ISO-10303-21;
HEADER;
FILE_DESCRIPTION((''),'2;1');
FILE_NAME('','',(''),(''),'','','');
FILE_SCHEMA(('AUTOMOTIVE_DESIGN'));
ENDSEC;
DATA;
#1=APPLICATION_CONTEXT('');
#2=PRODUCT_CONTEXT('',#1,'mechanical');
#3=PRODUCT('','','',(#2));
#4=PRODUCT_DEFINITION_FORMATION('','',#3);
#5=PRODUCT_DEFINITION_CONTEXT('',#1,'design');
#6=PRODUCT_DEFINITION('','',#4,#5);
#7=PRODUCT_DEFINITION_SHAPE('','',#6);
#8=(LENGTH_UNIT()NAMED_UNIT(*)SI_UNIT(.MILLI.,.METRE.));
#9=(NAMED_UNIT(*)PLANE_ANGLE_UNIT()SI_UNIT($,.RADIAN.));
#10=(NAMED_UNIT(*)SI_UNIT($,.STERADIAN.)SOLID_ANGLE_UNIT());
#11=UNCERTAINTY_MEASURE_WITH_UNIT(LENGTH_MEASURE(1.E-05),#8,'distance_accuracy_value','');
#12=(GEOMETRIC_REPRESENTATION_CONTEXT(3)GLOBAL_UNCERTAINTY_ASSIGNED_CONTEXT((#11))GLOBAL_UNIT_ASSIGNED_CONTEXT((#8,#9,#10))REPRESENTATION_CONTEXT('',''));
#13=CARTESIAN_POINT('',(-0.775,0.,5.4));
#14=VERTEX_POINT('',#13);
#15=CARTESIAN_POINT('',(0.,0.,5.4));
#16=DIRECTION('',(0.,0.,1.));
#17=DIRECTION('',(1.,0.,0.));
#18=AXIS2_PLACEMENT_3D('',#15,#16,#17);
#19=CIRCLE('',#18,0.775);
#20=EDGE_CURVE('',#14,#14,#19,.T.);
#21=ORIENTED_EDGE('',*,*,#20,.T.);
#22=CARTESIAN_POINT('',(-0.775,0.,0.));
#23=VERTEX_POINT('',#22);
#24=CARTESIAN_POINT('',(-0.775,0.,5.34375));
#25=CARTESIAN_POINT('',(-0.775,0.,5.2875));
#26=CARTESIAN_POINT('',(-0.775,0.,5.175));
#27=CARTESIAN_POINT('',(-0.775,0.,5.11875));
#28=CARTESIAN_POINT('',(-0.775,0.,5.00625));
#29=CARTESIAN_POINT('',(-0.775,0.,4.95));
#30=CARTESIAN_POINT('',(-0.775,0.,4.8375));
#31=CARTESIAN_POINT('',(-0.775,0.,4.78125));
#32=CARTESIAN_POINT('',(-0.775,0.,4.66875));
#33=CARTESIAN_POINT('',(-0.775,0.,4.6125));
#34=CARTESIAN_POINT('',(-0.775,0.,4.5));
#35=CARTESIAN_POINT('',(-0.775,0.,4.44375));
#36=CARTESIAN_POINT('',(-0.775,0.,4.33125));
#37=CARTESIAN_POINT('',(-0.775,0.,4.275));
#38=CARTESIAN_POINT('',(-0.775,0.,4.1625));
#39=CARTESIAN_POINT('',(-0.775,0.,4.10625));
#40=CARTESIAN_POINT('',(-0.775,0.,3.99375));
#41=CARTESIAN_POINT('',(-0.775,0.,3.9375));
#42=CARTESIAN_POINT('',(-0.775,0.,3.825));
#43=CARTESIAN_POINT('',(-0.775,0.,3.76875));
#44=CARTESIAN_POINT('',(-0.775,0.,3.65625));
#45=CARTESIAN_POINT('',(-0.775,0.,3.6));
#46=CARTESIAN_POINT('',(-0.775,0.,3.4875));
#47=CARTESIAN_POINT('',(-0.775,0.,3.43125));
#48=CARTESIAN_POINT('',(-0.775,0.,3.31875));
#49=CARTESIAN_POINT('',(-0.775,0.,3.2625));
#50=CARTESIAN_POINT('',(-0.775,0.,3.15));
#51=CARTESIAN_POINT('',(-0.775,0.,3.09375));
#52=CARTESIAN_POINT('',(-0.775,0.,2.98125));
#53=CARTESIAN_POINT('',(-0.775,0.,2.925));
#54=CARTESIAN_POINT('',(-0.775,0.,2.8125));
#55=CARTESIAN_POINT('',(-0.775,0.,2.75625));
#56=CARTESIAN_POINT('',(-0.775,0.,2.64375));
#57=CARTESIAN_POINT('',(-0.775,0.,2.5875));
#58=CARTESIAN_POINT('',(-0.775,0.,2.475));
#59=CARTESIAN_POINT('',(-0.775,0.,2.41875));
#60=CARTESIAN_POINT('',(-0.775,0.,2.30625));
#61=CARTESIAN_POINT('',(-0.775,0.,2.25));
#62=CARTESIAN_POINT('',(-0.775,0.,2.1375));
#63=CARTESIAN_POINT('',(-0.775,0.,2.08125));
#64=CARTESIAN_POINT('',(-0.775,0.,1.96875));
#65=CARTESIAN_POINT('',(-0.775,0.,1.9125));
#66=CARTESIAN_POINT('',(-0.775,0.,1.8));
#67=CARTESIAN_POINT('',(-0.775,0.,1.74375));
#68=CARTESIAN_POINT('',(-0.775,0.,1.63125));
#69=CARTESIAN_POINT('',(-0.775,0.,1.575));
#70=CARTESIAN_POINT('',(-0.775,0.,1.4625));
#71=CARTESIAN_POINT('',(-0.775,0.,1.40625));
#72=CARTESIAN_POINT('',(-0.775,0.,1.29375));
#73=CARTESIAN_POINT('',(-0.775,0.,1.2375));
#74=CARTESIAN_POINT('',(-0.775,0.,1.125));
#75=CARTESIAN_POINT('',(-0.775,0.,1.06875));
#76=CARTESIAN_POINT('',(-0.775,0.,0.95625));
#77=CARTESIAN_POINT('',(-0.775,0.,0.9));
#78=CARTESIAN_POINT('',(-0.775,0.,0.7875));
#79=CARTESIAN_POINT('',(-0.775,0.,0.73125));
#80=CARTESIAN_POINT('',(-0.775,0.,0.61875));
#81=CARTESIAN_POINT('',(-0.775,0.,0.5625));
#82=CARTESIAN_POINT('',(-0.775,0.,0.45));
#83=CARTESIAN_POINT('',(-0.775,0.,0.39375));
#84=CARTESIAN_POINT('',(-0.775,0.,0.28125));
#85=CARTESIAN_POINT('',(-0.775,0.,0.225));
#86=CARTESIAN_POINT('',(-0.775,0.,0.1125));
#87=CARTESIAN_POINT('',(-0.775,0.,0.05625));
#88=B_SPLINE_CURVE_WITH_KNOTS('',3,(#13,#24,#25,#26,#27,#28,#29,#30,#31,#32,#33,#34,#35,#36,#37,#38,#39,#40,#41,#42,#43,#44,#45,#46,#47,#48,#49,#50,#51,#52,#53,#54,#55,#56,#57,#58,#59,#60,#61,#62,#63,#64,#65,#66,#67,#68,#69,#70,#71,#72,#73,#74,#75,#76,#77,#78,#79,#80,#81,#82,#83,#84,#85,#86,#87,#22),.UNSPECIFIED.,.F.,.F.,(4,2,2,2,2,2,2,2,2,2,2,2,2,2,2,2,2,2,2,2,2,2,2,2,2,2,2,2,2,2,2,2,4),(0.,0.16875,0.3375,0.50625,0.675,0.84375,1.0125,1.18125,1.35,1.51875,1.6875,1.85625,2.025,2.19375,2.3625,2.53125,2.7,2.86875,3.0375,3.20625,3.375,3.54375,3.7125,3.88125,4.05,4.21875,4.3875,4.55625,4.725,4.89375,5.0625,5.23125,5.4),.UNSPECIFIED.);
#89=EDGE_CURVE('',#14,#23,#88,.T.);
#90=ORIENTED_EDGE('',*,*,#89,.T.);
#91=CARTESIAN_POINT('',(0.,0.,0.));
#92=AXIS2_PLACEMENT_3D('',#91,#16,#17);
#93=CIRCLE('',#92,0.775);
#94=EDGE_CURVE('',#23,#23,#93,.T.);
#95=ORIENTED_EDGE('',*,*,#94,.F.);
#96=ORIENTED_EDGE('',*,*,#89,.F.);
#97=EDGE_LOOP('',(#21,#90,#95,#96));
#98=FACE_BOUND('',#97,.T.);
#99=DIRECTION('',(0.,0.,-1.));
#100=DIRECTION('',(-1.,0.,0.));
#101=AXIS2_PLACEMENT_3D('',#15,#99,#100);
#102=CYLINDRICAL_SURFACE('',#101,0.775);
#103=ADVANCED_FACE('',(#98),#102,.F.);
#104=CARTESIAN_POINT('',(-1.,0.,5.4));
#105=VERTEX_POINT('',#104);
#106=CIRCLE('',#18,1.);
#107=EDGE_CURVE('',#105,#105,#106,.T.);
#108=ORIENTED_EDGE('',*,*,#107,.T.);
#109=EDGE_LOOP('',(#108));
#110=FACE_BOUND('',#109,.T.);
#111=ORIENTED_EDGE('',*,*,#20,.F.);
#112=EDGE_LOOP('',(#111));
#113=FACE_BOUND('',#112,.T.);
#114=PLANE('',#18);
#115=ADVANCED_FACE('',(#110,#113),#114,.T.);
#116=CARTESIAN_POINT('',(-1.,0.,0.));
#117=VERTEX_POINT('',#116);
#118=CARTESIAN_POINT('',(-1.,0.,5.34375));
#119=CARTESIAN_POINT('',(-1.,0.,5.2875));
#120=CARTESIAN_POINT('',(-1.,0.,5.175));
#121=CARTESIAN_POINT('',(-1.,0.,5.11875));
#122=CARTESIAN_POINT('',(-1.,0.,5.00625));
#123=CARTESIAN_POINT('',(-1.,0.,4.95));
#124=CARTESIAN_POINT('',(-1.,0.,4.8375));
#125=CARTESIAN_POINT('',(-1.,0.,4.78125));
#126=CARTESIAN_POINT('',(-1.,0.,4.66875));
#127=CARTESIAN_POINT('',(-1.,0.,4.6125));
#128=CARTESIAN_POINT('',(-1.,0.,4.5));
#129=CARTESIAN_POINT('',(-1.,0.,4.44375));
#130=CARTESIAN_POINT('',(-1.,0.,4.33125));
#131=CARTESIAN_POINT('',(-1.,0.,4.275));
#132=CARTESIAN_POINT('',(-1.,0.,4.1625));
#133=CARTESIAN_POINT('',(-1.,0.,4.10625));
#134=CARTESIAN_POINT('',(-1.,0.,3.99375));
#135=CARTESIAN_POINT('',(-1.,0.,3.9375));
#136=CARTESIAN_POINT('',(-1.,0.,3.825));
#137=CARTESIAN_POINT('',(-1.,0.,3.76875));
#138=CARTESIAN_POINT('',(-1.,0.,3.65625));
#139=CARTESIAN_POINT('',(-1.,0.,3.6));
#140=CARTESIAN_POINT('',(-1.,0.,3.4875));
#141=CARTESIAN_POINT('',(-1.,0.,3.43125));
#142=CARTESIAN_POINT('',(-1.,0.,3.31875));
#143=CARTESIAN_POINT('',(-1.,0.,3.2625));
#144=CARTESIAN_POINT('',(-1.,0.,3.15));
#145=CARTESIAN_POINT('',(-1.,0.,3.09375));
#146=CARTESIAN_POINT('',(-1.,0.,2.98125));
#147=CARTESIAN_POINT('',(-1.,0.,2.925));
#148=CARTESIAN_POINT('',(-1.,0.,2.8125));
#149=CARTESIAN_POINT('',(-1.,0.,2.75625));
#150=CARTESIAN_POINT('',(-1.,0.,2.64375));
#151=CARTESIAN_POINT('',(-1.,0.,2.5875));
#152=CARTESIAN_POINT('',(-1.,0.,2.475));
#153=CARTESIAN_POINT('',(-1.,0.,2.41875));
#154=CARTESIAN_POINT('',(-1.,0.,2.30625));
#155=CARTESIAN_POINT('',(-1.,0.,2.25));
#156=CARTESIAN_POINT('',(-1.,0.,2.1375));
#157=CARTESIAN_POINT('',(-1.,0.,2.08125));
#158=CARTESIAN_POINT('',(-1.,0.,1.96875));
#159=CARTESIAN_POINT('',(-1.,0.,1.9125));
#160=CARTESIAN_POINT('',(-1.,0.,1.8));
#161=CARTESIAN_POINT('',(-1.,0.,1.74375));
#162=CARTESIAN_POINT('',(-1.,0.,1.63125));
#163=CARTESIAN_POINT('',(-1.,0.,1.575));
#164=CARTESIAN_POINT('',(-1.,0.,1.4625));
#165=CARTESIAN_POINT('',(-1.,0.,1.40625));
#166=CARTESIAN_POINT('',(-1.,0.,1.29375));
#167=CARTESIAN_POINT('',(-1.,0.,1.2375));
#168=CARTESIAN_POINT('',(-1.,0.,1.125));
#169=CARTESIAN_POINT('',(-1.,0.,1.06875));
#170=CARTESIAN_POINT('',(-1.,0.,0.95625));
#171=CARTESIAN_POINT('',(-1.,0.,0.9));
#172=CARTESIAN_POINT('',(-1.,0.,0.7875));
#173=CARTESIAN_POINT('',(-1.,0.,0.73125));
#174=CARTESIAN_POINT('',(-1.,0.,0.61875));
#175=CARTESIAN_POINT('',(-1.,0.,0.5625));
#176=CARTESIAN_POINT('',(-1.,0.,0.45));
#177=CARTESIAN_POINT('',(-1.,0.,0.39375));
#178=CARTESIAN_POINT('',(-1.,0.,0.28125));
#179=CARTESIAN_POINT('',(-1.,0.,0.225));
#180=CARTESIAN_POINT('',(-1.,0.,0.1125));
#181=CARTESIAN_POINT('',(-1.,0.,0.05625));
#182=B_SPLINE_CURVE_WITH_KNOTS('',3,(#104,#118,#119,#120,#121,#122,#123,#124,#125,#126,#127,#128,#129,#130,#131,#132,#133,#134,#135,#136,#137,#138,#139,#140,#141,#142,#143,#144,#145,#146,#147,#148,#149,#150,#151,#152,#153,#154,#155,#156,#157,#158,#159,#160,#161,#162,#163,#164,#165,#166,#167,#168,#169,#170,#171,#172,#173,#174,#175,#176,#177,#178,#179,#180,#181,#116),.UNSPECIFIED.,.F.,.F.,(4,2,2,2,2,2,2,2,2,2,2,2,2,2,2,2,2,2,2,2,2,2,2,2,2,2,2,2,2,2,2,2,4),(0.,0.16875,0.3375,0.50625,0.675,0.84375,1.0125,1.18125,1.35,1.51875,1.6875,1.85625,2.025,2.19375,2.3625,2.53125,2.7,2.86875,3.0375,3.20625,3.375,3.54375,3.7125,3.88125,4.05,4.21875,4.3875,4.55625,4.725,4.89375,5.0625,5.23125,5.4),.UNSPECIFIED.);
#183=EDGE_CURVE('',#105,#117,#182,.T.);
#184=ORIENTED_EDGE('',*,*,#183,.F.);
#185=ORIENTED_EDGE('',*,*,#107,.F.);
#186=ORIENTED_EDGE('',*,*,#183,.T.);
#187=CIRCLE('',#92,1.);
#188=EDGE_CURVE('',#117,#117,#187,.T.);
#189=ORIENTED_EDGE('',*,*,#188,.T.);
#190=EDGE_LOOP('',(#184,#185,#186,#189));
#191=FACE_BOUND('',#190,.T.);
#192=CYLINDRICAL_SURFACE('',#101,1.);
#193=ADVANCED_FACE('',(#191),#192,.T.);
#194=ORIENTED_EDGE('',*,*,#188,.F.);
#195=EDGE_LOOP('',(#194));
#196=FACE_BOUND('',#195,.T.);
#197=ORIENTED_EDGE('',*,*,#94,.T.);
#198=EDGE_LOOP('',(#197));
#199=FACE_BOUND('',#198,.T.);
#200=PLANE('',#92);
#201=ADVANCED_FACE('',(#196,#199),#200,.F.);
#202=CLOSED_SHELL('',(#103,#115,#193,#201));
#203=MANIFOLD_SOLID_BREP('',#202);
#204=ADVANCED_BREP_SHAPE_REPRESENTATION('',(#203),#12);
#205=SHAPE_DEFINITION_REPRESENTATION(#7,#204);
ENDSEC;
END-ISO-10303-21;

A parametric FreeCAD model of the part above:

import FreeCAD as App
import Part
import Sketcher

V = App.Vector

doc = App.newDocument("Part")
body = doc.addObject("PartDesign::Body", "Body")

# Sketch on XY plane
sketch1 = body.newObject("Sketcher::SketchObject", "Sketch")
sketch1.AttachmentSupport = (doc.getObject("XY_Plane"), [""])
sketch1.MapMode = "FlatFace"
sketch1.addGeometry([
    Part.Circle(V(0, 0, 0), V(0, 0, 1), 1),
    Part.Circle(V(0, 0, 0), V(0, 0, 1), 0.775),
], False)
sketch1.addConstraint([
    Sketcher.Constraint("Coincident", 0, 3, -1, 1),
    Sketcher.Constraint("Coincident", 1, 3, -1, 1),
    Sketcher.Constraint("Diameter", 0, 2.0),
    Sketcher.Constraint("Diameter", 1, 1.55),
])
pad1 = body.newObject("PartDesign::Pad", "Pad")
pad1.Profile = sketch1
pad1.Length = 5.4

doc.recompute()
